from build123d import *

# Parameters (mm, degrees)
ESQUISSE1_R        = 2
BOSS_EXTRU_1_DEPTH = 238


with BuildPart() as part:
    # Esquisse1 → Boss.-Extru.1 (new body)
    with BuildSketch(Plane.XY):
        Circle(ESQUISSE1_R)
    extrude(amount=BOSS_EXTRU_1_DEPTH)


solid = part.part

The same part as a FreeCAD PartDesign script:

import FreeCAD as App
import Part
import Sketcher

doc = App.newDocument("Part")
body = doc.addObject("PartDesign::Body", "Body")

sketch1 = body.newObject("Sketcher::SketchObject", "Sketch")
sketch1.AttachmentSupport = (doc.getObject("XY_Plane"), [""])
sketch1.MapMode = "FlatFace"
sketch1.addGeometry(Part.Circle(App.Vector(0, 0, 0), App.Vector(0, 0, 1), 2), False)
sketch1.addConstraint([
    Sketcher.Constraint("Coincident", 0, 3, -1, 1),
    Sketcher.Constraint("Diameter", 0, 4.0),
])
pad1 = body.newObject("PartDesign::Pad", "Pad")
pad1.Profile = sketch1
pad1.Length = 238

doc.recompute()
